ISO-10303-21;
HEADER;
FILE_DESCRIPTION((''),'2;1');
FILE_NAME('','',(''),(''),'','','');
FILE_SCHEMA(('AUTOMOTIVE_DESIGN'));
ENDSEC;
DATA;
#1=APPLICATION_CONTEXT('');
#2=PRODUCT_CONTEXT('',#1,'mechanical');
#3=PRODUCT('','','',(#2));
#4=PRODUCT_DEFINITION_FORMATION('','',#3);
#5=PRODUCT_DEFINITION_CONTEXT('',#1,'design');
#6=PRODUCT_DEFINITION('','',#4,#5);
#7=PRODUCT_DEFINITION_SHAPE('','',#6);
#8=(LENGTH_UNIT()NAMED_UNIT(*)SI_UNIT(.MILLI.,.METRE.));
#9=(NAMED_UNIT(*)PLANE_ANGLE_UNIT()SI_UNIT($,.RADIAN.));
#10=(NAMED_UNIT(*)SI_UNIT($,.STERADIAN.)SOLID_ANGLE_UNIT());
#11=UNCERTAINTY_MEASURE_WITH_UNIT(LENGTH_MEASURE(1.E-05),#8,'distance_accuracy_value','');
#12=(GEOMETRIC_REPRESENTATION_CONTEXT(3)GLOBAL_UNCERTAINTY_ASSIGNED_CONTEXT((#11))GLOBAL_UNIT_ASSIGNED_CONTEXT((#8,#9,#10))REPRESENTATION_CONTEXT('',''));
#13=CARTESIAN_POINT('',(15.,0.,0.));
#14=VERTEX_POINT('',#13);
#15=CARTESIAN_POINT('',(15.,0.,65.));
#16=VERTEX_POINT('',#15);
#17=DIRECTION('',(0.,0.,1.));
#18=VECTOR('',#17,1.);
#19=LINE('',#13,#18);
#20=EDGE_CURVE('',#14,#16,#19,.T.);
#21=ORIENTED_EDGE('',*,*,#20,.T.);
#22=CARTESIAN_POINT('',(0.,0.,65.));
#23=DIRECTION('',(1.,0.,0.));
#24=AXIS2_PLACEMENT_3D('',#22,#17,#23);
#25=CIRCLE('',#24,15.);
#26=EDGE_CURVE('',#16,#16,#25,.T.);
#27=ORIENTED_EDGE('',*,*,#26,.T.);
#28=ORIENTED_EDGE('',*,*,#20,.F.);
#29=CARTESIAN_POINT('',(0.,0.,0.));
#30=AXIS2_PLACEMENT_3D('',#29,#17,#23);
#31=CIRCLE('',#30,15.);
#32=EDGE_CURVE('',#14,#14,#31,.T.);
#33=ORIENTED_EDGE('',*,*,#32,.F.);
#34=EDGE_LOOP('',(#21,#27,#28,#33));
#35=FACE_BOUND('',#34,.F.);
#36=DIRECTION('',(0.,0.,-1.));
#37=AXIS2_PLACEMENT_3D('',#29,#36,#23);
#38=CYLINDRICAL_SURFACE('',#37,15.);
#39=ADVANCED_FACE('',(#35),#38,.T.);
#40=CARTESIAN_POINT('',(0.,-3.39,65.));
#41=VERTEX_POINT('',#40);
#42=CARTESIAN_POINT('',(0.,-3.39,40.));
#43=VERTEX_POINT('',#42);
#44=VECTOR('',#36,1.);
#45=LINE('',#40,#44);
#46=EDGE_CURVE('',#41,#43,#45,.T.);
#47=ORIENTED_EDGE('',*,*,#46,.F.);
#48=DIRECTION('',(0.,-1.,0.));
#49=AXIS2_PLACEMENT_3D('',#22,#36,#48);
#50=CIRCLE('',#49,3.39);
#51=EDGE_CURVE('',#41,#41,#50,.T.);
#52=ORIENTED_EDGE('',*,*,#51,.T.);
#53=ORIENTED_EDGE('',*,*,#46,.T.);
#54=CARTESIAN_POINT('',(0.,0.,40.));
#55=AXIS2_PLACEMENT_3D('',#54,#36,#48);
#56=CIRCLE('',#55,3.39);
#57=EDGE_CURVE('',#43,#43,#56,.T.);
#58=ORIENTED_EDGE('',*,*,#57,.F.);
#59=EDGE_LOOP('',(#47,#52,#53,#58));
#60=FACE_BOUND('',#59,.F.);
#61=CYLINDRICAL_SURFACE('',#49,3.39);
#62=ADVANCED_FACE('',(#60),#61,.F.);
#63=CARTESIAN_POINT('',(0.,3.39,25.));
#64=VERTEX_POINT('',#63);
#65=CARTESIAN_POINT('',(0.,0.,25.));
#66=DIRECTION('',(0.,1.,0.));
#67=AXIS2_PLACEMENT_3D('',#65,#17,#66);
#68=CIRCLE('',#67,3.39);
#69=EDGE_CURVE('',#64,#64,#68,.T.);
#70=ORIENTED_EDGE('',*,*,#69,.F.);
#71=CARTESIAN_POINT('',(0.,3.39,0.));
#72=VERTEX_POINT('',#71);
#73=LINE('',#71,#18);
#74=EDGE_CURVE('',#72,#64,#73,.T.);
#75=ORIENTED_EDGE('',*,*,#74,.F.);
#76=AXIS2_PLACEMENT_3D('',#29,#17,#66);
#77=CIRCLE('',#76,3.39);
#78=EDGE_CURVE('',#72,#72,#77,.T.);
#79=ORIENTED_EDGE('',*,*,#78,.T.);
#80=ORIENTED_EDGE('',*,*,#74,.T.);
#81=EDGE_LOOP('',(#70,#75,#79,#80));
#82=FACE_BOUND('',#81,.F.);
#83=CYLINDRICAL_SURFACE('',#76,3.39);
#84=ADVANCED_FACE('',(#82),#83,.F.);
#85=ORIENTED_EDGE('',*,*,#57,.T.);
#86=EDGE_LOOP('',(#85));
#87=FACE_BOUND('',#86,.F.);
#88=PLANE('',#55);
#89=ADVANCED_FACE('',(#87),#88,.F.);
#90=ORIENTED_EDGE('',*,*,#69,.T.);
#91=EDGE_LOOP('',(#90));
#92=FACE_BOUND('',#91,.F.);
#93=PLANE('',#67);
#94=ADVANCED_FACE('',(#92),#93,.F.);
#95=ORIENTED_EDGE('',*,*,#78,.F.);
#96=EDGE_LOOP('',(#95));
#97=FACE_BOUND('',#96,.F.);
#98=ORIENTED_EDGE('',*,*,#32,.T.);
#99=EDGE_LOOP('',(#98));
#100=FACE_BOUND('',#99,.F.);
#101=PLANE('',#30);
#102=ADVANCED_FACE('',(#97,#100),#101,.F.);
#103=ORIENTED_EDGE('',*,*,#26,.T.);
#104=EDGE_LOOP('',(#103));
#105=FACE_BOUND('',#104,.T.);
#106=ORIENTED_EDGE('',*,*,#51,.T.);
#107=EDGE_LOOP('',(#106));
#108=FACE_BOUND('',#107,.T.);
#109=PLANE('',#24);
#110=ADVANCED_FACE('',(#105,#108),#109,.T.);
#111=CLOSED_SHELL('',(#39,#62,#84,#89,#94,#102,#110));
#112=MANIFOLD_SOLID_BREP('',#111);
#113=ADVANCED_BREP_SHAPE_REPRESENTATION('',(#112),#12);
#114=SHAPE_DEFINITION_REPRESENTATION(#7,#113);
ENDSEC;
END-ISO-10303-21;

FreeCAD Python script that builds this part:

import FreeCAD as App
import Part
import Sketcher
from FreeCAD import Vector

doc = App.newDocument("Part")
body = doc.addObject("PartDesign::Body", "Body")

# Sketch on XY plane
sketch1 = body.newObject("Sketcher::SketchObject", "Sketch")
sketch1.AttachmentSupport = (doc.getObject("XY_Plane"), [""])
sketch1.MapMode = "FlatFace"
sketch1.addGeometry(Part.Circle(Vector(0, 0, 0), Vector(0, 0, 1), 15), False)
sketch1.addConstraint([
    Sketcher.Constraint("Coincident", 0, 3, -1, 1),
    Sketcher.Constraint("Diameter", 0, 30.0),
])
pad1 = body.newObject("PartDesign::Pad", "Pad")
pad1.Profile = sketch1
pad1.Length = 65

# Sketch on XY plane
sketch2 = body.newObject("Sketcher::SketchObject", "Sketch001")
sketch2.AttachmentSupport = (doc.getObject("XY_Plane"), [""])
sketch2.MapMode = "FlatFace"
sketch2.AttachmentOffset = App.Placement(Vector(0, 0, 65), App.Rotation())
sketch2.addGeometry(Part.Circle(Vector(0, 0, 0), Vector(0, 0, 1), 3.39), False)
sketch2.addConstraint([
    Sketcher.Constraint("Coincident", 0, 3, -1, 1),
    Sketcher.Constraint("Diameter", 0, 6.78),
])
doc.recompute()
hole = body.newObject("PartDesign::Hole", "Hole")
hole.Profile = sketch2
hole.ThreadType = "None"
hole.Diameter = 6.78
hole.DepthType = "Dimension"
hole.Depth = 25
hole.DrillPoint = "Flat"

# Sketch on XY plane
sketch3 = body.newObject("Sketcher::SketchObject", "Sketch002")
sketch3.AttachmentSupport = (doc.getObject("XY_Plane"), [""])
sketch3.MapMode = "FlatFace"
sketch3.addGeometry(Part.Circle(Vector(0, 0, 0), Vector(0, 0, 1), 3.39), False)
sketch3.addConstraint([
    Sketcher.Constraint("Coincident", 0, 3, -1, 1),
    Sketcher.Constraint("Diameter", 0, 6.78),
])
doc.recompute()
hole2 = body.newObject("PartDesign::Hole", "Hole001")
hole2.Profile = sketch3
hole2.ThreadType = "None"
hole2.Diameter = 6.78
hole2.DepthType = "Dimension"
hole2.Depth = 25
hole2.DrillPoint = "Flat"
hole2.Reversed = True

doc.recompute()
